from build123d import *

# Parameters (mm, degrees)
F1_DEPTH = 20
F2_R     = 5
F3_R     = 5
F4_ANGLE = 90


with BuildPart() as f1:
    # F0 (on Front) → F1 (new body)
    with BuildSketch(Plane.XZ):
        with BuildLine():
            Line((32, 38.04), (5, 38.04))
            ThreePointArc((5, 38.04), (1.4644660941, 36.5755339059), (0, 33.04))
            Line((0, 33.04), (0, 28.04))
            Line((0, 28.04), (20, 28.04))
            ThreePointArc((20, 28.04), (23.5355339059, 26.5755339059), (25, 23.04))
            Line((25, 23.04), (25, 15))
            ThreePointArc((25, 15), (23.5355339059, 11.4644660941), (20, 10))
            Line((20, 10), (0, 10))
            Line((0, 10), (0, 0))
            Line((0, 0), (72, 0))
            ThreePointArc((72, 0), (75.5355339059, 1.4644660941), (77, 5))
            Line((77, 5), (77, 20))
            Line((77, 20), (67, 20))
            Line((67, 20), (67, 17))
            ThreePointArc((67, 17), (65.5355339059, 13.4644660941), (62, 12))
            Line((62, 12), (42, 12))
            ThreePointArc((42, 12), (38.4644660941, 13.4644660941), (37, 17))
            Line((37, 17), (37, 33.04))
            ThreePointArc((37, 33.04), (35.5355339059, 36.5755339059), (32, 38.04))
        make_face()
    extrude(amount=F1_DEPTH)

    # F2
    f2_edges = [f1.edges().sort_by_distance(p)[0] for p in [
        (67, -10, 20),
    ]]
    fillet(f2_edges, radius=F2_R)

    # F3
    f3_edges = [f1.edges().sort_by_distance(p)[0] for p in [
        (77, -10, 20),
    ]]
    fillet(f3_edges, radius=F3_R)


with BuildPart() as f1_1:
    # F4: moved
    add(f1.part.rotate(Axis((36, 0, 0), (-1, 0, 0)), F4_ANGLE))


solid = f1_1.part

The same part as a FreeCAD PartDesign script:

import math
import FreeCAD as App
import Part
import Sketcher

V = App.Vector
Q = App.Units.Quantity


def edges_at(feature, points):
    """Names of the edges that pass closest to the given points."""
    edges = feature.Shape.Edges
    near = lambda p: min(range(len(edges)), key=lambda i: edges[i].distToShape(Part.Vertex(*p))[0])
    return sorted({f"Edge{near(p) + 1}" for p in points})

doc = App.newDocument("Part")
body = doc.addObject("PartDesign::Body", "Body")

# Sketch on XZ plane
sketch1 = doc.addObject("Sketcher::SketchObject", "Sketch")
body.addObject(sketch1)
sketch1.AttachmentSupport = (doc.XZ_Plane, [""])
sketch1.MapMode = "FlatFace"
sketch1.addGeometry([
    Part.LineSegment(V(32, 38, 0), V(5, 38, 0)),  # 0
    Part.ArcOfCircle(Part.Circle(V(5, 33, 0), V(0, 0, 1), 5), math.radians(90), math.radians(180)),  # 1
    Part.LineSegment(V(0, 33, 0), V(0, 28, 0)),  # 2
    Part.LineSegment(V(0, 28, 0), V(20, 28, 0)),  # 3
    Part.ArcOfCircle(Part.Circle(V(20, 23, 0), V(0, 0, 1), 5), math.radians(0), math.radians(90)),  # 4
    Part.LineSegment(V(25, 23, 0), V(25, 15, 0)),  # 5
    Part.ArcOfCircle(Part.Circle(V(20, 15, 0), V(0, 0, 1), 5), math.radians(-90), math.radians(0)),  # 6
    Part.LineSegment(V(20, 10, 0), V(0, 10, 0)),  # 7
    Part.LineSegment(V(0, 10, 0), V(0, 0, 0)),  # 8
    Part.LineSegment(V(0, 0, 0), V(72, 0, 0)),  # 9
    Part.ArcOfCircle(Part.Circle(V(72, 5, 0), V(0, 0, 1), 5), math.radians(-90), math.radians(0)),  # 10
    Part.LineSegment(V(77, 5, 0), V(77, 20, 0)),  # 11
    Part.LineSegment(V(77, 20, 0), V(67, 20, 0)),  # 12
    Part.LineSegment(V(67, 20, 0), V(67, 17, 0)),  # 13
    Part.ArcOfCircle(Part.Circle(V(62, 17, 0), V(0, 0, 1), 5), math.radians(-90), math.radians(0)),  # 14
    Part.LineSegment(V(62, 12, 0), V(42, 12, 0)),  # 15
    Part.ArcOfCircle(Part.Circle(V(42, 17, 0), V(0, 0, 1), 5), math.radians(180), math.radians(270)),  # 16
    Part.LineSegment(V(37, 17, 0), V(37, 33, 0)),  # 17
    Part.ArcOfCircle(Part.Circle(V(32, 33, 0), V(0, 0, 1), 5), math.radians(0), math.radians(90)),  # 18
], False)
sketch1.addConstraint([
    Sketcher.Constraint("Tangent", 0, 2, 1, 1),
    Sketcher.Constraint("Tangent", 1, 2, 2, 1),
    Sketcher.Constraint("Coincident", 2, 2, 3, 1),
    Sketcher.Constraint("Tangent", 3, 2, 4, 2),
    Sketcher.Constraint("Tangent", 4, 1, 5, 1),
    Sketcher.Constraint("Tangent", 5, 2, 6, 2),
    Sketcher.Constraint("Tangent", 6, 1, 7, 1),
    Sketcher.Constraint("Coincident", 7, 2, 8, 1),
    Sketcher.Constraint("Coincident", 8, 2, 9, 1),
    Sketcher.Constraint("Tangent", 9, 2, 10, 1),
    Sketcher.Constraint("Tangent", 10, 2, 11, 1),
    Sketcher.Constraint("Coincident", 11, 2, 12, 1),
    Sketcher.Constraint("Coincident", 12, 2, 13, 1),
    Sketcher.Constraint("Tangent", 13, 2, 14, 2),
    Sketcher.Constraint("Tangent", 14, 1, 15, 1),
    Sketcher.Constraint("Tangent", 15, 2, 16, 2),
    Sketcher.Constraint("Tangent", 16, 1, 17, 1),
    Sketcher.Constraint("Tangent", 17, 2, 18, 1),
    Sketcher.Constraint("Tangent", 18, 2, 0, 1),
    Sketcher.Constraint("Horizontal", 0),
    Sketcher.Constraint("Vertical", 2),
    Sketcher.Constraint("Horizontal", 3),
    Sketcher.Constraint("Vertical", 5),
    Sketcher.Constraint("Horizontal", 7),
    Sketcher.Constraint("Vertical", 8),
    Sketcher.Constraint("Horizontal", 9),
    Sketcher.Constraint("Vertical", 11),
    Sketcher.Constraint("Horizontal", 12),
    Sketcher.Constraint("Vertical", 13),
    Sketcher.Constraint("Horizontal", 15),
    Sketcher.Constraint("Vertical", 17),
    Sketcher.Constraint("Coincident", 8, 2, -1, 1),
    Sketcher.Constraint("Equal", 1, 4),
    Sketcher.Constraint("Equal", 4, 6),
    Sketcher.Constraint("Equal", 6, 10),
    Sketcher.Constraint("Equal", 10, 14),
    Sketcher.Constraint("Equal", 14, 16),
    Sketcher.Constraint("Equal", 16, 18),
    Sketcher.Constraint("PointOnObject", 1, 2, -2),
    Sketcher.Constraint("Equal", 7, 15),
    Sketcher.Constraint("Equal", 12, 8),
    Sketcher.Constraint("Radius", 1, Q("5 mm")),
    Sketcher.Constraint("DistanceX", 0, 2, 0, 1, Q("27 mm")),
    Sketcher.Constraint("DistanceX", 3, 1, 3, 2, Q("20 mm")),
    Sketcher.Constraint("DistanceX", 9, 1, 9, 2, Q("72 mm")),
    Sketcher.Constraint("DistanceY", 2, 2, 2, 1, Q("5 mm")),
    Sketcher.Constraint("DistanceY", 11, 1, 11, 2, Q("15 mm")),
    Sketcher.Constraint("DistanceY", 13, 2, 13, 1, Q("3 mm")),
    Sketcher.Constraint("DistanceY", 5, 2, 5, 1, Q("8.04 mm")),
])
pad1 = doc.addObject("PartDesign::Pad", "Pad")
body.addObject(pad1)
pad1.Profile = sketch1
pad1.Length = 20
doc.recompute()

fillet = doc.addObject("PartDesign::Fillet", "Fillet")
body.addObject(fillet)
fillet.Base = (pad1, edges_at(pad1, [(67, -10, 20)]))
fillet.Radius = 5
doc.recompute()

fillet2 = doc.addObject("PartDesign::Fillet", "Fillet001")
body.addObject(fillet2)
fillet2.Base = (fillet, edges_at(fillet, [(77, -10, 20)]))
fillet2.Radius = 5
body2 = doc.addObject("PartDesign::Body", "Body001")
doc.recompute()

body.Placement = App.Placement(V(0, 0, 0), App.Rotation(V(-1, 0, 0), 90))
boolean = doc.addObject("PartDesign::Boolean", "Boolean")
body2.addObject(boolean)
boolean.Type = "Fuse"
boolean.addObjects([body])

doc.recompute()
